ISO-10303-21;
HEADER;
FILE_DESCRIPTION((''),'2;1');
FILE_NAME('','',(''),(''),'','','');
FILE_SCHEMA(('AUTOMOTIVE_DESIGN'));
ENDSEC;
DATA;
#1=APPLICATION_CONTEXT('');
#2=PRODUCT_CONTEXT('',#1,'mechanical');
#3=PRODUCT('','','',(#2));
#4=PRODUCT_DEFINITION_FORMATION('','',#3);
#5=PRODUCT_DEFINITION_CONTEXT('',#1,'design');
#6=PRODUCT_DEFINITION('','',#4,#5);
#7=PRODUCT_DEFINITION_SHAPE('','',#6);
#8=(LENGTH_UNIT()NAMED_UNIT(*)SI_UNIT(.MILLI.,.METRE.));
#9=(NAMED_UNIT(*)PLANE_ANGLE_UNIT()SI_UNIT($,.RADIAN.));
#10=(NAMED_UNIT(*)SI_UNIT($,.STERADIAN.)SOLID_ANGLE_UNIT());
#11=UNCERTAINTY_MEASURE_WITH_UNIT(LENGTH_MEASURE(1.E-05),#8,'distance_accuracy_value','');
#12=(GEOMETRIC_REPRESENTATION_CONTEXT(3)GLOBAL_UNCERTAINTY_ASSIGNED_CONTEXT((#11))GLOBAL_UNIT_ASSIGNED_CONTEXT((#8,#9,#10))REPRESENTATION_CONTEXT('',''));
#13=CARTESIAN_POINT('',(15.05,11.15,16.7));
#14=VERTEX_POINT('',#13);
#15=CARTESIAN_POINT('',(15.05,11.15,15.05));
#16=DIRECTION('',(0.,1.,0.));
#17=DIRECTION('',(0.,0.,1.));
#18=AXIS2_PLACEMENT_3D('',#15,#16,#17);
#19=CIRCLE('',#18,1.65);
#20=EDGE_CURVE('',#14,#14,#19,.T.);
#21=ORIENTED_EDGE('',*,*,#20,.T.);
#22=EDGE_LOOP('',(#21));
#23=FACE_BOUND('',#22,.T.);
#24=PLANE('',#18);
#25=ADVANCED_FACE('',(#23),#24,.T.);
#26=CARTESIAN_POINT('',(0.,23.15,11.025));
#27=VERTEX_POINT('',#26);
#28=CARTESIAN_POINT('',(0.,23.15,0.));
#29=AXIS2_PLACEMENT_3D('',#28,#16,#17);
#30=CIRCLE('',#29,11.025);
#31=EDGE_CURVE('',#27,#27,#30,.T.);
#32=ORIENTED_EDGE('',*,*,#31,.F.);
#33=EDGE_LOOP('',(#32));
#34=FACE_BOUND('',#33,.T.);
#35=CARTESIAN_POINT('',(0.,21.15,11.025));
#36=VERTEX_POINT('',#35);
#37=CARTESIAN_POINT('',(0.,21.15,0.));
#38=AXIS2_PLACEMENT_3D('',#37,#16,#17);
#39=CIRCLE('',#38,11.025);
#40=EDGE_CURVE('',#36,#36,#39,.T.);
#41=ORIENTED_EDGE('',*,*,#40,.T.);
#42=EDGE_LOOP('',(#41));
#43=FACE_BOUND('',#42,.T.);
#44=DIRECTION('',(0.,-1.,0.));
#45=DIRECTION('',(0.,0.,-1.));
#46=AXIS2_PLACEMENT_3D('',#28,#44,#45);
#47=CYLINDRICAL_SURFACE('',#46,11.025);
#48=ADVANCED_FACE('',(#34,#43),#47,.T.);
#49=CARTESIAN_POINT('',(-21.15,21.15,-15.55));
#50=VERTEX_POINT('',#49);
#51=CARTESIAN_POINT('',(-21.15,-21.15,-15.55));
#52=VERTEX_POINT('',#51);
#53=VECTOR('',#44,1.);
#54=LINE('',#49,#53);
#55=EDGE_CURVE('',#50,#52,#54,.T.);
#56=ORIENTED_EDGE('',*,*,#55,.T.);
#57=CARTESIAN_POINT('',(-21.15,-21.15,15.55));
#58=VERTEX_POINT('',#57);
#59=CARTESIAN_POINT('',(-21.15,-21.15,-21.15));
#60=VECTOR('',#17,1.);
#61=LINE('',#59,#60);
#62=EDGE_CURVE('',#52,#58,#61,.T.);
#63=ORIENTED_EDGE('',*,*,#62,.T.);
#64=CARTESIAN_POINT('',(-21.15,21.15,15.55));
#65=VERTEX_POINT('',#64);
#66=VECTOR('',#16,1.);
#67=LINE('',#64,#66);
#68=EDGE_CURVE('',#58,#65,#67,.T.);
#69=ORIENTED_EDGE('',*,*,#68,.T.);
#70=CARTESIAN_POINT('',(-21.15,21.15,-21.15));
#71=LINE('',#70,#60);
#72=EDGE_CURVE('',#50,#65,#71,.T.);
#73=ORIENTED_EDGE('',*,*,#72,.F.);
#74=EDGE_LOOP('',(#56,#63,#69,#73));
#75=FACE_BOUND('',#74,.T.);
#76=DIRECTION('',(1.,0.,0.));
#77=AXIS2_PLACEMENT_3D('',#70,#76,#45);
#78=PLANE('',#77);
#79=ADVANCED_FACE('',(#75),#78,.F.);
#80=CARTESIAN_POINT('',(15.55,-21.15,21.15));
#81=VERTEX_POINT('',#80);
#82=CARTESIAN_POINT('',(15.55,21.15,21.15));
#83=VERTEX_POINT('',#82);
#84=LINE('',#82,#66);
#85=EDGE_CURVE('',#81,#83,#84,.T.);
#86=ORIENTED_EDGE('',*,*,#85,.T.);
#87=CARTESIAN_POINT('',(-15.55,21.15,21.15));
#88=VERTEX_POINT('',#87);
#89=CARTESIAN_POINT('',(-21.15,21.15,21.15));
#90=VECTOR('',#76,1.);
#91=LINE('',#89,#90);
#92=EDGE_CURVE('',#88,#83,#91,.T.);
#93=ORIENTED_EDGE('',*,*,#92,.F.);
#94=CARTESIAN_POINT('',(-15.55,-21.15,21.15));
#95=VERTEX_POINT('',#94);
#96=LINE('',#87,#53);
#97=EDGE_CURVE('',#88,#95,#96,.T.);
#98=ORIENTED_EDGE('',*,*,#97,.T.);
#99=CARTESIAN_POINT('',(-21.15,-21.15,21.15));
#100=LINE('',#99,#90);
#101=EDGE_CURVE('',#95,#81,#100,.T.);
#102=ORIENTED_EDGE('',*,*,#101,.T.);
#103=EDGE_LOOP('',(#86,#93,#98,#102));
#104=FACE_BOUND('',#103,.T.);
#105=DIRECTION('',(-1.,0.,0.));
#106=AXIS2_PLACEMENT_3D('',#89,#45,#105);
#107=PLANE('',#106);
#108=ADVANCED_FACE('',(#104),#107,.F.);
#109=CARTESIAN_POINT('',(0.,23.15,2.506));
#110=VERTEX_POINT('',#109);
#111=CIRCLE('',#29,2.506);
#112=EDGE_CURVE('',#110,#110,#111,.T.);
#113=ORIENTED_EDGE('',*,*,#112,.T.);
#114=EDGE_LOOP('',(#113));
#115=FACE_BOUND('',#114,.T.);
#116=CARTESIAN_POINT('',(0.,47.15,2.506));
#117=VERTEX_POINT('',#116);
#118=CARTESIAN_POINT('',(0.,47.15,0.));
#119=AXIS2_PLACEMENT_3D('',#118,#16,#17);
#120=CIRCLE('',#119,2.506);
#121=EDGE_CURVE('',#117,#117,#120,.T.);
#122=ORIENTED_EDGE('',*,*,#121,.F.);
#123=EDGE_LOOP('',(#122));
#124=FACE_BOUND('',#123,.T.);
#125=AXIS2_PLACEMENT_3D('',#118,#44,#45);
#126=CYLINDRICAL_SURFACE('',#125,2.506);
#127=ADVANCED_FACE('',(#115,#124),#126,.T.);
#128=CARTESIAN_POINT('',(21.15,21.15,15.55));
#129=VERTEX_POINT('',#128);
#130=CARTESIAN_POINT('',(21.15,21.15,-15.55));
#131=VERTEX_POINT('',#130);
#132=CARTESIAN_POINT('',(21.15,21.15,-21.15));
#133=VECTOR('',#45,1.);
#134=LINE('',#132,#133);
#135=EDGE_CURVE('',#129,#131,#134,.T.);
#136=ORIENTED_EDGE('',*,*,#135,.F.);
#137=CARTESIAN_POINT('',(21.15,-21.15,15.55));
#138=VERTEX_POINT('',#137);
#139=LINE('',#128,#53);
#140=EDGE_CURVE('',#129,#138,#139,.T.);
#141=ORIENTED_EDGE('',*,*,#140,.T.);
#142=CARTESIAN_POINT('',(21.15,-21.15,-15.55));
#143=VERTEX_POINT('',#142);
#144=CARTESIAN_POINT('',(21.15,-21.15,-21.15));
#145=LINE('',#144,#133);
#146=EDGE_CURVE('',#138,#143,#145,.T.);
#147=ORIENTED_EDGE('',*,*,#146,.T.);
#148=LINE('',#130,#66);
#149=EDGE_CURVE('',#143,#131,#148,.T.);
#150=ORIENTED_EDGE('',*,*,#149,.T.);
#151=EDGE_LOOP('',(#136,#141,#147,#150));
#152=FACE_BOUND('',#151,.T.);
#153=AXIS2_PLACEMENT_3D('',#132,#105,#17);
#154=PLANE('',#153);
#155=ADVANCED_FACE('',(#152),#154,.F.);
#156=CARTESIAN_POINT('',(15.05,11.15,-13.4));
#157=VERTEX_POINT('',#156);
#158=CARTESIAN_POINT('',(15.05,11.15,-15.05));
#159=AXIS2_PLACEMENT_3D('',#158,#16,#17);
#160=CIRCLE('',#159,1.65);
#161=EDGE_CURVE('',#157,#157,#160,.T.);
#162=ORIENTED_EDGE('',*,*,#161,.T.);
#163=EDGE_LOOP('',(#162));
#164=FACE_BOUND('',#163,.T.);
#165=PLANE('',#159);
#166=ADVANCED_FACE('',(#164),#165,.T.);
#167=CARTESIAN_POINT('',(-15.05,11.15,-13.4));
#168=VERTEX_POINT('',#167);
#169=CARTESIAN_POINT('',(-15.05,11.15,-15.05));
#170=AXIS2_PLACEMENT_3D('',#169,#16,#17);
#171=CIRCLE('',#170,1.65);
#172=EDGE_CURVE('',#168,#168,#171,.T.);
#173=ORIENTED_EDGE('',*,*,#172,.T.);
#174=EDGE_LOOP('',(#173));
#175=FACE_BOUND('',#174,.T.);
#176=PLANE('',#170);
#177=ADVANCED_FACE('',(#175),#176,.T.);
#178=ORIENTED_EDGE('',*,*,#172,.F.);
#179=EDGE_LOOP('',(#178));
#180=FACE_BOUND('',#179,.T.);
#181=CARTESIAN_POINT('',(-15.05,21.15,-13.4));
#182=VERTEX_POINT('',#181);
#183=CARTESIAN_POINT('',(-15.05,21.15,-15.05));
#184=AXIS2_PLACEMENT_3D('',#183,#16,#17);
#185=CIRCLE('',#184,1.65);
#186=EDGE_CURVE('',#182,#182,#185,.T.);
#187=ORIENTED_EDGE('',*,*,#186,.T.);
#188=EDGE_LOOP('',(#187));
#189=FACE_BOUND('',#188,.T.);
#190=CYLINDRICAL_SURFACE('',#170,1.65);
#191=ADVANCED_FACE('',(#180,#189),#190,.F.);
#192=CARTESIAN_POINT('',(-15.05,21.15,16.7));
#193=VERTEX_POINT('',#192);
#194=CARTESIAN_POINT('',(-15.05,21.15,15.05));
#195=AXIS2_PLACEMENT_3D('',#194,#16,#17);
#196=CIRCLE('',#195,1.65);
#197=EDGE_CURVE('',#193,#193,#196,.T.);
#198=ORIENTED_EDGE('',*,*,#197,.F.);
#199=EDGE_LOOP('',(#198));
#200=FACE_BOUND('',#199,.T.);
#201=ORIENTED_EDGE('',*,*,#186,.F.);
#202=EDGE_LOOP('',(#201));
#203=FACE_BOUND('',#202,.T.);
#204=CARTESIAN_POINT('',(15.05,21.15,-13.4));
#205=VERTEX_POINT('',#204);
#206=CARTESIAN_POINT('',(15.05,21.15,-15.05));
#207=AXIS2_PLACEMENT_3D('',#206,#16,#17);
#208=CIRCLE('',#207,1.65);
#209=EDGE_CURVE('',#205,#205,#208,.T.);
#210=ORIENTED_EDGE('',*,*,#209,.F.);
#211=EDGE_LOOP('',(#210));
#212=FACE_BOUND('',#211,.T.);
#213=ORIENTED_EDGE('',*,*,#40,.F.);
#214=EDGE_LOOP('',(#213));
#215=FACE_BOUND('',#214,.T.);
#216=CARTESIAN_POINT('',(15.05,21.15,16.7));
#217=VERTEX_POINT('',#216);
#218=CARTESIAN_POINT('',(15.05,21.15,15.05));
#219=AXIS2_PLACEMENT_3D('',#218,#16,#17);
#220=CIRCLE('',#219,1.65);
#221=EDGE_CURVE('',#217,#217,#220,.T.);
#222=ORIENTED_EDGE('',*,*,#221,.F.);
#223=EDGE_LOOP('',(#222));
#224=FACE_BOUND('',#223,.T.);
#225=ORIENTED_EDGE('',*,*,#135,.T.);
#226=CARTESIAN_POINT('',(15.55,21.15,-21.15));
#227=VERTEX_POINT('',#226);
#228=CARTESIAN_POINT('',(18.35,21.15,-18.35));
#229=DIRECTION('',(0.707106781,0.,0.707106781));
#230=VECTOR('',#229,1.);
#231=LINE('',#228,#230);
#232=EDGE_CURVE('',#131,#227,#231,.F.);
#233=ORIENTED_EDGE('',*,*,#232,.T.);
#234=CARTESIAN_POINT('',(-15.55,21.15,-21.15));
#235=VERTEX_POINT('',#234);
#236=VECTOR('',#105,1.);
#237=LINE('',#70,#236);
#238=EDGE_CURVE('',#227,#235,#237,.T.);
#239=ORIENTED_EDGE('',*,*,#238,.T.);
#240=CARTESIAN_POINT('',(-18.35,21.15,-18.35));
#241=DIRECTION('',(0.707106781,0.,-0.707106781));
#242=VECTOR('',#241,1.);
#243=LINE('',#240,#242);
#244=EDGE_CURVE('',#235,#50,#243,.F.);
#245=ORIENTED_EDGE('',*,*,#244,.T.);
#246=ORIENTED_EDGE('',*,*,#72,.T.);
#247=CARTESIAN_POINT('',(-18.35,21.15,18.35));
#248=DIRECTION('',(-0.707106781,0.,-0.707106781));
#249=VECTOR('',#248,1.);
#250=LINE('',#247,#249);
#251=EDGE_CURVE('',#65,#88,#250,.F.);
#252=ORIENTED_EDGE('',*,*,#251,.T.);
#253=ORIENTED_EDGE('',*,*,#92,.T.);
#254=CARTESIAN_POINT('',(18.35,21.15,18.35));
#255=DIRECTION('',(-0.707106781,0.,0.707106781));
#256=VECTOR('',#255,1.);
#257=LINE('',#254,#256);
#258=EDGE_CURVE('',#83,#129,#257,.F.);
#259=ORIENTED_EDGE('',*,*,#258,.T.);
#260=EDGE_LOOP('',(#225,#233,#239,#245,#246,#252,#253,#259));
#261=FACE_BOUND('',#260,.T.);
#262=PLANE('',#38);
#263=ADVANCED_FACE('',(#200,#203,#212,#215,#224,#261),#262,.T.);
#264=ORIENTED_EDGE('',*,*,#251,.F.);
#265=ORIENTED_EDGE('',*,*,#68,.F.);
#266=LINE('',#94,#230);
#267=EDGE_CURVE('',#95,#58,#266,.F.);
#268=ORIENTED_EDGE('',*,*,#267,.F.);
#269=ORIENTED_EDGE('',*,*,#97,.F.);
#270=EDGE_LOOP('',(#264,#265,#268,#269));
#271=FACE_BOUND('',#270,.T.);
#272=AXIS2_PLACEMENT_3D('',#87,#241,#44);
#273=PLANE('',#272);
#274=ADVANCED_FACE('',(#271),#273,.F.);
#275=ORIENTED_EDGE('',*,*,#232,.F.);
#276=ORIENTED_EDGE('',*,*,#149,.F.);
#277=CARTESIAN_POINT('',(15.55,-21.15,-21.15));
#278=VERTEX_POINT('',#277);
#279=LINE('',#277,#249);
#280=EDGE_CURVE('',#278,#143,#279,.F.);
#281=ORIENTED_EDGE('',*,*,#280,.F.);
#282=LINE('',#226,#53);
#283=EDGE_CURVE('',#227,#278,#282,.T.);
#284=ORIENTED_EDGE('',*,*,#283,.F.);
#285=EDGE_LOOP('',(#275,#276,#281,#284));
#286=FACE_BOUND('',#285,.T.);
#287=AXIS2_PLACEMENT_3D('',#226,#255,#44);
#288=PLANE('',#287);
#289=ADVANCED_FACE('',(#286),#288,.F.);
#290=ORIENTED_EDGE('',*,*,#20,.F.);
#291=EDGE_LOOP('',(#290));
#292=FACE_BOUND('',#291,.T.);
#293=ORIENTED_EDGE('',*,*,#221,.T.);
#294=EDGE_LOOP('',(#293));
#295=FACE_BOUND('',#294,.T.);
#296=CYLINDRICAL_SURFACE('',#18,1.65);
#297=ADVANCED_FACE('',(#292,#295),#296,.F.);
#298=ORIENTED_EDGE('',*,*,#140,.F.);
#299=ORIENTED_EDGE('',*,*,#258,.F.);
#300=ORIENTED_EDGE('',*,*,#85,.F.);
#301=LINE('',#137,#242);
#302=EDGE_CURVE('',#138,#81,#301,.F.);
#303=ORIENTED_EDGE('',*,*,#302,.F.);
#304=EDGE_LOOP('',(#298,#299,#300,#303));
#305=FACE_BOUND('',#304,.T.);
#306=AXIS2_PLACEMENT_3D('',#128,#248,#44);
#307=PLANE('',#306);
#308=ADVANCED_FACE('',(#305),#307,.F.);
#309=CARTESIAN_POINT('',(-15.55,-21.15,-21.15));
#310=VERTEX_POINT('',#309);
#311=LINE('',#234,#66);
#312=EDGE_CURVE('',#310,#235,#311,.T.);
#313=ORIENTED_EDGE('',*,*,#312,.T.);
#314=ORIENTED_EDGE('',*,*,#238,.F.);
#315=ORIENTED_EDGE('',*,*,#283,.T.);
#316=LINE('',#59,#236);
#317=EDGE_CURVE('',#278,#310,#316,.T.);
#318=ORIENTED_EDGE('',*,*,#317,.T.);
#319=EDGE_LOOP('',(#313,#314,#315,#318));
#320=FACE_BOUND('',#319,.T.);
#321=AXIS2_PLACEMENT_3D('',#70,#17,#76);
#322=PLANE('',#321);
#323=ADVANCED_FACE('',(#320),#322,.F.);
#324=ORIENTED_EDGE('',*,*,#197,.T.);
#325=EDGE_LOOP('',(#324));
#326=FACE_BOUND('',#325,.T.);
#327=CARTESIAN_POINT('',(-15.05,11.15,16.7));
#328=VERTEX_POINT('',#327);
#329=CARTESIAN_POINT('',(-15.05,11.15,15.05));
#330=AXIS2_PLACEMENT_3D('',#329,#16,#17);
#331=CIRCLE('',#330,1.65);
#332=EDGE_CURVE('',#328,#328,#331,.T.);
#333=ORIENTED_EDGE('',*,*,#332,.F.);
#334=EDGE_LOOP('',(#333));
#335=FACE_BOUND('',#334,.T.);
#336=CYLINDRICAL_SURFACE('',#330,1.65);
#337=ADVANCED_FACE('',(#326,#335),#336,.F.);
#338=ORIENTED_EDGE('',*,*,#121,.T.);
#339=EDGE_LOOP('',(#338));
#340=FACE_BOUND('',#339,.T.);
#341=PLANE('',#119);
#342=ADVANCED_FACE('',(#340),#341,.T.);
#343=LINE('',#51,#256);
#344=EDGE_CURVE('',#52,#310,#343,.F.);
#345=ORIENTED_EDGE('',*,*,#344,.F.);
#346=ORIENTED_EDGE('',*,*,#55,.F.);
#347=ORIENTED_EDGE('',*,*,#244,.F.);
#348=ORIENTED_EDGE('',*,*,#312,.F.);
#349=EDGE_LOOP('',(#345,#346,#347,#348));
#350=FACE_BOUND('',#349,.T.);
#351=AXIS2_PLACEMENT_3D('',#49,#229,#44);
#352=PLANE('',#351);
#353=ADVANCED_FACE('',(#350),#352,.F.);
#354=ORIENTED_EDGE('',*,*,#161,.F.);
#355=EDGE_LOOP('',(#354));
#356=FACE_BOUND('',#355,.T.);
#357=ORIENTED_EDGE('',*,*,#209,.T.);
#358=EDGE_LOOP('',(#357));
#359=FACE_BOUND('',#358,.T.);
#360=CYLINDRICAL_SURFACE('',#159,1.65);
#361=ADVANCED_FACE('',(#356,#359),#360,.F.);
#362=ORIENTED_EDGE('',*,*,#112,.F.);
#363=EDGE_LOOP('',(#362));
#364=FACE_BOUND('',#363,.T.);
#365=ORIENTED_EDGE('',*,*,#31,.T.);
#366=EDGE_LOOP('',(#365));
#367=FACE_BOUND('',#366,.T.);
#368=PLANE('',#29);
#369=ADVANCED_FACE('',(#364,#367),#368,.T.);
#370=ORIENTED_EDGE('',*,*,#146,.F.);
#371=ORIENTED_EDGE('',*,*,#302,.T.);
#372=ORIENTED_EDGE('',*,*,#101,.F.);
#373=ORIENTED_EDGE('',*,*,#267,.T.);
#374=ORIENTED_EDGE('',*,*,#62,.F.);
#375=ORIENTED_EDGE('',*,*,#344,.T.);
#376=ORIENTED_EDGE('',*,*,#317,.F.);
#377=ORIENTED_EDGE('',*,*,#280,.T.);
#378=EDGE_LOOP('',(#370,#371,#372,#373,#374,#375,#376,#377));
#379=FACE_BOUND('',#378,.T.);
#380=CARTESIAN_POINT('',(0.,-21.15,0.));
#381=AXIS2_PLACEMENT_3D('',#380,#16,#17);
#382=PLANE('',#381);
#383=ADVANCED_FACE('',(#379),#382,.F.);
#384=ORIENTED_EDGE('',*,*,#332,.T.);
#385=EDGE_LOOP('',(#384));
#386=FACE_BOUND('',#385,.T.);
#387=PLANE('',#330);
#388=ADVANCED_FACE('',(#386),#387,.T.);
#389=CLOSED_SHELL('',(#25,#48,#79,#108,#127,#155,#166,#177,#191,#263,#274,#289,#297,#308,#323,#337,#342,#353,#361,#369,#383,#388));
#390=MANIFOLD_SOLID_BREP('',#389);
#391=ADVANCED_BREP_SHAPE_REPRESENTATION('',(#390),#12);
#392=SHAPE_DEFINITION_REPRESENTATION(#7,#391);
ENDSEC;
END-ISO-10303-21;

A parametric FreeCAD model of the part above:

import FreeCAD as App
import Part
import Sketcher
Q = App.Units.Quantity


def edges_at(feature, points):
    """Names of the edges that pass closest to the given points."""
    edges = feature.Shape.Edges
    near = lambda p: min(range(len(edges)), key=lambda i: edges[i].distToShape(Part.Vertex(*p))[0])
    return sorted({f"Edge{near(p) + 1}" for p in points})

doc = App.newDocument("Part")
body = doc.addObject("PartDesign::Body", "Body")

# Sketch on XZ plane
sketch1 = body.newObject("Sketcher::SketchObject", "Sketch")
sketch1.AttachmentSupport = (doc.getObject("XZ_Plane"), [""])
sketch1.MapMode = "FlatFace"
sketch1.addGeometry(Part.LineSegment(App.Vector(-21, -21, 0), App.Vector(-21, 21, 0)), False)
sketch1.addGeometry(Part.LineSegment(App.Vector(-21, 21, 0), App.Vector(21, 21, 0)), False)
sketch1.addGeometry(Part.LineSegment(App.Vector(21, 21, 0), App.Vector(21, -21, 0)), False)
sketch1.addGeometry(Part.LineSegment(App.Vector(21, -21, 0), App.Vector(-21, -21, 0)), False)
sketch1.addConstraint(Sketcher.Constraint("Coincident", 0, 2, 1, 1))
sketch1.addConstraint(Sketcher.Constraint("Coincident", 1, 2, 2, 1))
sketch1.addConstraint(Sketcher.Constraint("Coincident", 2, 2, 3, 1))
sketch1.addConstraint(Sketcher.Constraint("Coincident", 3, 2, 0, 1))
sketch1.addConstraint(Sketcher.Constraint("Vertical", 0))
sketch1.addConstraint(Sketcher.Constraint("Horizontal", 1))
sketch1.addConstraint(Sketcher.Constraint("Vertical", 2))
sketch1.addConstraint(Sketcher.Constraint("Horizontal", 3))
sketch1.addConstraint(Sketcher.Constraint("Symmetric", 0, 2, 2, 2, -1, 1))
sketch1.addConstraint(Sketcher.Constraint("Equal", 3, 0))
sketch1.addConstraint(Sketcher.Constraint("DistanceX", 1, 1, 1, 2, Q("42.3 mm")))
pad1 = body.newObject("PartDesign::Pad", "Pad")
pad1.Profile = sketch1
pad1.Length = 42.3
pad1.Midplane = True

# Sketch on XZ plane
sketch2 = body.newObject("Sketcher::SketchObject", "Sketch001")
sketch2.AttachmentSupport = (doc.getObject("XZ_Plane"), [""])
sketch2.MapMode = "FlatFace"
sketch2.AttachmentOffset = App.Placement(App.Vector(0, 0, -21.15), App.Rotation())
sketch2.addGeometry(Part.Circle(App.Vector(0, 0, 0), App.Vector(0, 0, 1), 11), False)
sketch2.addConstraint(Sketcher.Constraint("Coincident", 0, 3, -1, 1))
sketch2.addConstraint(Sketcher.Constraint("Diameter", 0, Q("22.05 mm")))
pad2 = body.newObject("PartDesign::Pad", "Pad001")
pad2.Profile = sketch2
pad2.Length = 2
pad2.Reversed = True

# Sketch on XZ plane
sketch3 = body.newObject("Sketcher::SketchObject", "Sketch002")
sketch3.AttachmentSupport = (doc.getObject("XZ_Plane"), [""])
sketch3.MapMode = "FlatFace"
sketch3.AttachmentOffset = App.Placement(App.Vector(0, 0, -23.15), App.Rotation())
sketch3.addGeometry(Part.Circle(App.Vector(0, 0, 0), App.Vector(0, 0, 1), 2.5), False)
sketch3.addConstraint(Sketcher.Constraint("Coincident", 0, 3, -1, 1))
sketch3.addConstraint(Sketcher.Constraint("Diameter", 0, Q("5.012 mm")))
pad3 = body.newObject("PartDesign::Pad", "Pad002")
pad3.Profile = sketch3
pad3.Length = 24
pad3.Reversed = True
doc.recompute()

chamfer = body.newObject("PartDesign::Chamfer", "Chamfer")
chamfer.Base = (pad3, edges_at(pad3, [
    (21.15, 0, 21.15),
    (-21.15, 0, 21.15),
    (-21.15, 0, -21.15),
    (21.15, 0, -21.15),
]))
chamfer.Size = 5.6

# Sketch on XZ plane
sketch4 = body.newObject("Sketcher::SketchObject", "Sketch003")
sketch4.AttachmentSupport = (doc.getObject("XZ_Plane"), [""])
sketch4.MapMode = "FlatFace"
sketch4.AttachmentOffset = App.Placement(App.Vector(0, 0, -21.15), App.Rotation())
sketch4.addGeometry(Part.Circle(App.Vector(-15.1, -15.1, 0), App.Vector(0, 0, 1), 1.6), False)
sketch4.addGeometry(Part.Circle(App.Vector(15.1, -15.1, 0), App.Vector(0, 0, 1), 1.6), False)
sketch4.addGeometry(Part.Circle(App.Vector(15.1, 15.1, 0), App.Vector(0, 0, 1), 1.6), False)
sketch4.addGeometry(Part.Circle(App.Vector(-15.1, 15.1, 0), App.Vector(0, 0, 1), 1.6), False)
sketch4.addConstraint(Sketcher.Constraint("Equal", 0, 1))
sketch4.addConstraint(Sketcher.Constraint("Equal", 1, 2))
sketch4.addConstraint(Sketcher.Constraint("Equal", 2, 3))
sketch4.addConstraint(Sketcher.Constraint("Symmetric", 0, 3, 2, 3, -1, 1))
sketch4.addConstraint(Sketcher.Constraint("Symmetric", 1, 3, 3, 3, -1, 1))
sketch4.addConstraint(Sketcher.Constraint("Symmetric", 0, 3, 1, 3, -2))
sketch4.addConstraint(Sketcher.Constraint("Diameter", 0, Q("3.3 mm")))
sketch4.addConstraint(Sketcher.Constraint("DistanceX", 0, 3, 1, 3, Q("30.1 mm")))
sketch4.addConstraint(Sketcher.Constraint("DistanceY", 1, 3, 2, 3, Q("30.1 mm")))
pocket1 = body.newObject("PartDesign::Pocket", "Pocket")
pocket1.Profile = sketch4
pocket1.Length = 10
pocket1.Reversed = True

doc.recompute()
